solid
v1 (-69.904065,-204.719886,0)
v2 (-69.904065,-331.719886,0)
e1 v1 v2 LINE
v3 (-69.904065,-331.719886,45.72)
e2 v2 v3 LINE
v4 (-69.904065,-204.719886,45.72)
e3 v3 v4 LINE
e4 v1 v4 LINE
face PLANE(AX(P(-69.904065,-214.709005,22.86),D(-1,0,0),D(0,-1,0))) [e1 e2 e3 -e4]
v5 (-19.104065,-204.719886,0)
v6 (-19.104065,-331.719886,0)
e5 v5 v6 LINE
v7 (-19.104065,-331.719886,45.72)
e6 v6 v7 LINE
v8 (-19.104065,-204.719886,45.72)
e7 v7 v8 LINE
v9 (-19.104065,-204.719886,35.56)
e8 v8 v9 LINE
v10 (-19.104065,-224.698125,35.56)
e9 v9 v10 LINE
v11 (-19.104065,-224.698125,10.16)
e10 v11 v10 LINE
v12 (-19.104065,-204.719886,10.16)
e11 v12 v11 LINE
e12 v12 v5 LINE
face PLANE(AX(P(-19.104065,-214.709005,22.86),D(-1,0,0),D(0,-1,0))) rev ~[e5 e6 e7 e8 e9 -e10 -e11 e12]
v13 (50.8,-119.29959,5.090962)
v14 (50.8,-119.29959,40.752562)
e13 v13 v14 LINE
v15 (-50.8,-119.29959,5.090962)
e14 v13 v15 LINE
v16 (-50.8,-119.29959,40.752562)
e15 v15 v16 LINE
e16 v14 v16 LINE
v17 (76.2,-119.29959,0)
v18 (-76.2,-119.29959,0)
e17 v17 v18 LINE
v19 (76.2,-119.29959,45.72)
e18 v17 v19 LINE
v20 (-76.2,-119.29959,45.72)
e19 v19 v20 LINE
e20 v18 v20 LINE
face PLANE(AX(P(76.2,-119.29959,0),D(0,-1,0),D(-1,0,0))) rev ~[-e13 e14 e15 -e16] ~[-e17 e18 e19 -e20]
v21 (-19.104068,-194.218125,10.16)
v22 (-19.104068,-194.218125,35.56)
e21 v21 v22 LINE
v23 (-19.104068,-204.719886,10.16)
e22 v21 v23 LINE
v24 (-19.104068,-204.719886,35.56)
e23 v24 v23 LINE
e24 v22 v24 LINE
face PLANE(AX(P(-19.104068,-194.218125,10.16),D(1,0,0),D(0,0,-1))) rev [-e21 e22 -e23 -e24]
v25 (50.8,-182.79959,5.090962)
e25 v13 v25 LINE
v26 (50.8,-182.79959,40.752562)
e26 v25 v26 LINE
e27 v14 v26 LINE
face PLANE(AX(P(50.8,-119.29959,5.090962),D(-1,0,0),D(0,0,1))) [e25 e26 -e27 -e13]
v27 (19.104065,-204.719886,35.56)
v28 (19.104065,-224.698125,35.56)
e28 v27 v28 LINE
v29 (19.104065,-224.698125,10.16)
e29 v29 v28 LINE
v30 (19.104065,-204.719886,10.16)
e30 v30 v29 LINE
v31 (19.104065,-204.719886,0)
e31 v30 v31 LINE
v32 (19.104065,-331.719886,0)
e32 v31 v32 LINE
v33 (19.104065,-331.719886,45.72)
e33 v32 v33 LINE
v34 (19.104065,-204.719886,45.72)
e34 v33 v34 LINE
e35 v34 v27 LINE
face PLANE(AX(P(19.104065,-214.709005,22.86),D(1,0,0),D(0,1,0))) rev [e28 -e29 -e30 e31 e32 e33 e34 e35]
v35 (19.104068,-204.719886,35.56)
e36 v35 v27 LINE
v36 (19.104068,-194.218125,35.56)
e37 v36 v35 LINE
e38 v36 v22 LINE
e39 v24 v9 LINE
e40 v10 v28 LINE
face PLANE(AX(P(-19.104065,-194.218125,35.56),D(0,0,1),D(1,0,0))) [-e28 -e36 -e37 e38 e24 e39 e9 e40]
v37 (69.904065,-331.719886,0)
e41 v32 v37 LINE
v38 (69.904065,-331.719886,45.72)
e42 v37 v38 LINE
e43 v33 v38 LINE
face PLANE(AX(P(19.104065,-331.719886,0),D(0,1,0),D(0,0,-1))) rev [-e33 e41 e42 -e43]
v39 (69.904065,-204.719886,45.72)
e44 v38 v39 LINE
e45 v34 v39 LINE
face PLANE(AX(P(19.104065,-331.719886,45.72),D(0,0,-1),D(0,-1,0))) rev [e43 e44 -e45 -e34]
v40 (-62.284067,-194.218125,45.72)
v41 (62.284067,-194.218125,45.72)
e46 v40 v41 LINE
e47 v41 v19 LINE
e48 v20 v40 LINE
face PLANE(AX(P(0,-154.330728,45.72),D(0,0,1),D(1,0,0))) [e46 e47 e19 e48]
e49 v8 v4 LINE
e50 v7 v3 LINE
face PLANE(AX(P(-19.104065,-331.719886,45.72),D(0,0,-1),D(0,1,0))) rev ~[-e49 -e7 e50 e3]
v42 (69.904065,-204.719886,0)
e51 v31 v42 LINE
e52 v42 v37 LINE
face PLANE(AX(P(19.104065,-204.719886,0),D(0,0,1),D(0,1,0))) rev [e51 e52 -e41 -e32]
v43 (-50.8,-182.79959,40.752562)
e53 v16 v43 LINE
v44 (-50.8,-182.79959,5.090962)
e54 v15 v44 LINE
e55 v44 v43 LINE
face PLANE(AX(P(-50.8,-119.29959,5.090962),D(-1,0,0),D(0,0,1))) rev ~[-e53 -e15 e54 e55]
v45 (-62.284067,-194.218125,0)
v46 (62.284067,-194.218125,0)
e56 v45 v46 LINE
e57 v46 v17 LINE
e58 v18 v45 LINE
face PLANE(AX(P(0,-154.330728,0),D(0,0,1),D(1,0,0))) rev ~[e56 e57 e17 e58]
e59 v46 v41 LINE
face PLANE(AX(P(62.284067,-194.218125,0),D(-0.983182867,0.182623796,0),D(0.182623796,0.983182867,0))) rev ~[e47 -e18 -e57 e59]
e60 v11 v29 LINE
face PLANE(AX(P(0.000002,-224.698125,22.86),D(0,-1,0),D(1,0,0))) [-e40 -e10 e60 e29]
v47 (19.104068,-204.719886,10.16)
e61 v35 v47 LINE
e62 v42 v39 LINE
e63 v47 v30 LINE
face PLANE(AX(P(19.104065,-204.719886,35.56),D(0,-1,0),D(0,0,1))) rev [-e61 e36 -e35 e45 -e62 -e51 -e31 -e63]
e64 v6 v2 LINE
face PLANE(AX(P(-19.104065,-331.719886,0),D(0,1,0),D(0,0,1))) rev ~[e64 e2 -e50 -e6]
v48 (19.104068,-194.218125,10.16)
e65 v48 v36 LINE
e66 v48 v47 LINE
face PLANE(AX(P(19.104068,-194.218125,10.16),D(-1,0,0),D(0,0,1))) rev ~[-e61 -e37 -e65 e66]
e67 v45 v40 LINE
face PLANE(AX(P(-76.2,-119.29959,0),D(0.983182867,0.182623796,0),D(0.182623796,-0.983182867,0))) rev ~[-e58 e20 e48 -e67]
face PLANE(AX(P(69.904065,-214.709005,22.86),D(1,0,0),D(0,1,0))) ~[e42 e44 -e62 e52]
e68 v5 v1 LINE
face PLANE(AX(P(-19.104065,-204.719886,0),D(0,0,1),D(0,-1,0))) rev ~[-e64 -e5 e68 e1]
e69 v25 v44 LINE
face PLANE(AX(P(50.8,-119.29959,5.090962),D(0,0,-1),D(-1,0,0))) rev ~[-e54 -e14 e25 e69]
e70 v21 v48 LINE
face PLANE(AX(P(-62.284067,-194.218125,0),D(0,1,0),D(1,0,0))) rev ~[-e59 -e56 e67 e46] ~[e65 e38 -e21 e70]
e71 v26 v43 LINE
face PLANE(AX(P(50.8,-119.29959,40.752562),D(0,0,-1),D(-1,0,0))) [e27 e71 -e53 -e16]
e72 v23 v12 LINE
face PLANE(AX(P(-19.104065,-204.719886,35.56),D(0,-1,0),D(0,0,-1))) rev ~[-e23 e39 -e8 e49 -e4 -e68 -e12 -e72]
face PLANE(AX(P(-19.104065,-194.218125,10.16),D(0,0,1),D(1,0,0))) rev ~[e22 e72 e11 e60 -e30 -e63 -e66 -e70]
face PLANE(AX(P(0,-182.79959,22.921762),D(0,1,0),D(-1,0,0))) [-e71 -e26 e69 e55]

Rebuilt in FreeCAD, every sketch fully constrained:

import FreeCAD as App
import Part
import Sketcher
from FreeCAD import Vector
Q = App.Units.Quantity

doc = App.newDocument("Part")
body = doc.addObject("PartDesign::Body", "Body")

# Sketch on XY plane
sketch1 = body.newObject("Sketcher::SketchObject", "Sketch")
sketch1.AttachmentSupport = (doc.getObject("XY_Plane"), [""])
sketch1.MapMode = "FlatFace"
sketch1.addGeometry([
    Part.LineSegment(Vector(-76, -119, 0), Vector(-62, -194, 0)),
    Part.LineSegment(Vector(-62, -194, 0), Vector(62, -194, 0)),
    Part.LineSegment(Vector(62, -194, 0), Vector(76, -119, 0)),
    Part.LineSegment(Vector(76, -119, 0), Vector(-76, -119, 0)),
], False)
sketch1.addConstraint([
    Sketcher.Constraint("Coincident", 0, 2, 1, 1),
    Sketcher.Constraint("Coincident", 1, 2, 2, 1),
    Sketcher.Constraint("Coincident", 2, 2, 3, 1),
    Sketcher.Constraint("Coincident", 3, 2, 0, 1),
    Sketcher.Constraint("Horizontal", 1),
    Sketcher.Constraint("Horizontal", 3),
    Sketcher.Constraint("Equal", 0, 2),
    Sketcher.Constraint("DistanceX", 3, 2, 3, 1, Q("6 in")),
    Sketcher.Constraint("Distance", 0, Q("3 in")),
    Sketcher.Constraint("DistanceX", -1, 1, 2, 2, Q("3 in")),
    Sketcher.Constraint("DistanceX", 1, 1, 1, 2, 124.568133),
    Sketcher.Constraint("DistanceY", 2, 2, -1, 1, 119.29959),
])
pad1 = body.newObject("PartDesign::Pad", "Pad")
pad1.Profile = sketch1
pad1.Length = Q("1.8 in")

# Sketch on XZ plane
sketch2 = body.newObject("Sketcher::SketchObject", "Sketch001")
sketch2.AttachmentSupport = (doc.getObject("XZ_Plane"), [""])
sketch2.MapMode = "FlatFace"
sketch2.AttachmentOffset = App.Placement(Vector(0, 0, 119.29959), App.Rotation())
sketch2.addGeometry([
    Part.LineSegment(Vector(51, 41, 0), Vector(51, 5, 0)),
    Part.LineSegment(Vector(51, 5, 0), Vector(-51, 5, 0)),
    Part.LineSegment(Vector(-51, 5, 0), Vector(-51, 41, 0)),
    Part.LineSegment(Vector(-51, 41, 0), Vector(51, 41, 0)),
], False)
sketch2.addConstraint([
    Sketcher.Constraint("Coincident", 0, 2, 1, 1),
    Sketcher.Constraint("Coincident", 1, 2, 2, 1),
    Sketcher.Constraint("Coincident", 2, 2, 3, 1),
    Sketcher.Constraint("Coincident", 3, 2, 0, 1),
    Sketcher.Constraint("Vertical", 0),
    Sketcher.Constraint("Horizontal", 1),
    Sketcher.Constraint("Vertical", 2),
    Sketcher.Constraint("Horizontal", 3),
    Sketcher.Constraint("DistanceX", 1, 2, 1, 1, Q("4 in")),
    Sketcher.Constraint("DistanceX", -1, 1, 0, 2, Q("2 in")),
    Sketcher.Constraint("DistanceY", 0, 2, 0, 1, Q("1.404 in")),
    Sketcher.Constraint("DistanceY", -1, 1, 0, 2, 5.090962),
])
pocket1 = body.newObject("PartDesign::Pocket", "Pocket")
pocket1.Profile = sketch2
pocket1.Length = Q("2.5 in")
pocket1.Reversed = True

# Sketch on XZ plane
sketch3 = body.newObject("Sketcher::SketchObject", "Sketch002")
sketch3.AttachmentSupport = (doc.getObject("XZ_Plane"), [""])
sketch3.MapMode = "FlatFace"
sketch3.AttachmentOffset = App.Placement(Vector(0, 0, 194.218125), App.Rotation())
sketch3.addGeometry([
    Part.LineSegment(Vector(-19, 36, 0), Vector(-19, 10, 0)),
    Part.LineSegment(Vector(-19, 10, 0), Vector(19, 10, 0)),
    Part.LineSegment(Vector(19, 10, 0), Vector(19, 36, 0)),
    Part.LineSegment(Vector(19, 36, 0), Vector(-19, 36, 0)),
], False)
sketch3.addConstraint([
    Sketcher.Constraint("Coincident", 0, 2, 1, 1),
    Sketcher.Constraint("Coincident", 1, 2, 2, 1),
    Sketcher.Constraint("Coincident", 2, 2, 3, 1),
    Sketcher.Constraint("Coincident", 3, 2, 0, 1),
    Sketcher.Constraint("Vertical", 0),
    Sketcher.Constraint("Horizontal", 1),
    Sketcher.Constraint("Vertical", 2),
    Sketcher.Constraint("Horizontal", 3),
    Sketcher.Constraint("DistanceY", 0, 2, 0, 1, Q("1 in")),
    Sketcher.Constraint("DistanceY", -1, 1, 0, 2, Q("0.4 in")),
    Sketcher.Constraint("DistanceX", 1, 1, 1, 2, 38.208133),
    Sketcher.Constraint("DistanceX", -1, 1, 1, 2, 19.104068),
])
pad2 = body.newObject("PartDesign::Pad", "Pad001")
pad2.Profile = sketch3
pad2.Length = Q("1.2 in")

# Sketch on YZ plane
sketch4 = body.newObject("Sketcher::SketchObject", "Sketch003")
sketch4.AttachmentSupport = (doc.getObject("YZ_Plane"), [""])
sketch4.MapMode = "FlatFace"
sketch4.AttachmentOffset = App.Placement(Vector(0, 0, -19.104065), App.Rotation())
sketch4.addGeometry([
    Part.LineSegment(Vector(-205, 36, 0), Vector(-205, 0, 0)),  # 0
    Part.LineSegment(Vector(-205, 0, 0), Vector(-332, 0, 0)),  # 1
    Part.LineSegment(Vector(-332, 0, 0), Vector(-332, 46, 0)),  # 2
    Part.LineSegment(Vector(-332, 46, 0), Vector(-205, 46, 0)),  # 3
    Part.LineSegment(Vector(-205, 46, 0), Vector(-205, 36, 0)),  # 4
], False)
sketch4.addConstraint([
    Sketcher.Constraint("Coincident", 0, 2, 1, 1),
    Sketcher.Constraint("Coincident", 1, 2, 2, 1),
    Sketcher.Constraint("Coincident", 2, 2, 3, 1),
    Sketcher.Constraint("Coincident", 3, 2, 4, 1),
    Sketcher.Constraint("Coincident", 4, 2, 0, 1),
    Sketcher.Constraint("Vertical", 0),
    Sketcher.Constraint("Horizontal", 1),
    Sketcher.Constraint("Vertical", 2),
    Sketcher.Constraint("Horizontal", 3),
    Sketcher.Constraint("Vertical", 4),
    Sketcher.Constraint("PointOnObject", 0, 2, -1),
    Sketcher.Constraint("DistanceX", 1, 2, 1, 1, Q("5 in")),
    Sketcher.Constraint("DistanceY", 0, 2, 0, 1, Q("1.4 in")),
    Sketcher.Constraint("DistanceY", 2, 1, 2, 2, Q("1.8 in")),
    Sketcher.Constraint("DistanceX", 0, 2, -1, 1, 204.719886),
])
pad3 = body.newObject("PartDesign::Pad", "Pad002")
pad3.Profile = sketch4
pad3.Length = Q("2 in")
pad3.Reversed = True
body2 = doc.addObject("PartDesign::Body", "Body001")
doc.recompute()

body2.BaseFeature = body
doc.recompute()

mirroring = doc.addObject("Part::Mirroring", "Mirroring")
mirroring.Source = body
mirroring.Base = Vector(0, 0, 0)
mirroring.Normal = Vector(1, 0, 0)
body3 = doc.addObject("PartDesign::Body", "Body002")
body3.BaseFeature = mirroring
boolean = body2.newObject("PartDesign::Boolean", "Boolean")
boolean.Type = "Fuse"
boolean.addObjects([body3])
doc.recompute()
mirroring.Visibility = False

doc.recompute()
